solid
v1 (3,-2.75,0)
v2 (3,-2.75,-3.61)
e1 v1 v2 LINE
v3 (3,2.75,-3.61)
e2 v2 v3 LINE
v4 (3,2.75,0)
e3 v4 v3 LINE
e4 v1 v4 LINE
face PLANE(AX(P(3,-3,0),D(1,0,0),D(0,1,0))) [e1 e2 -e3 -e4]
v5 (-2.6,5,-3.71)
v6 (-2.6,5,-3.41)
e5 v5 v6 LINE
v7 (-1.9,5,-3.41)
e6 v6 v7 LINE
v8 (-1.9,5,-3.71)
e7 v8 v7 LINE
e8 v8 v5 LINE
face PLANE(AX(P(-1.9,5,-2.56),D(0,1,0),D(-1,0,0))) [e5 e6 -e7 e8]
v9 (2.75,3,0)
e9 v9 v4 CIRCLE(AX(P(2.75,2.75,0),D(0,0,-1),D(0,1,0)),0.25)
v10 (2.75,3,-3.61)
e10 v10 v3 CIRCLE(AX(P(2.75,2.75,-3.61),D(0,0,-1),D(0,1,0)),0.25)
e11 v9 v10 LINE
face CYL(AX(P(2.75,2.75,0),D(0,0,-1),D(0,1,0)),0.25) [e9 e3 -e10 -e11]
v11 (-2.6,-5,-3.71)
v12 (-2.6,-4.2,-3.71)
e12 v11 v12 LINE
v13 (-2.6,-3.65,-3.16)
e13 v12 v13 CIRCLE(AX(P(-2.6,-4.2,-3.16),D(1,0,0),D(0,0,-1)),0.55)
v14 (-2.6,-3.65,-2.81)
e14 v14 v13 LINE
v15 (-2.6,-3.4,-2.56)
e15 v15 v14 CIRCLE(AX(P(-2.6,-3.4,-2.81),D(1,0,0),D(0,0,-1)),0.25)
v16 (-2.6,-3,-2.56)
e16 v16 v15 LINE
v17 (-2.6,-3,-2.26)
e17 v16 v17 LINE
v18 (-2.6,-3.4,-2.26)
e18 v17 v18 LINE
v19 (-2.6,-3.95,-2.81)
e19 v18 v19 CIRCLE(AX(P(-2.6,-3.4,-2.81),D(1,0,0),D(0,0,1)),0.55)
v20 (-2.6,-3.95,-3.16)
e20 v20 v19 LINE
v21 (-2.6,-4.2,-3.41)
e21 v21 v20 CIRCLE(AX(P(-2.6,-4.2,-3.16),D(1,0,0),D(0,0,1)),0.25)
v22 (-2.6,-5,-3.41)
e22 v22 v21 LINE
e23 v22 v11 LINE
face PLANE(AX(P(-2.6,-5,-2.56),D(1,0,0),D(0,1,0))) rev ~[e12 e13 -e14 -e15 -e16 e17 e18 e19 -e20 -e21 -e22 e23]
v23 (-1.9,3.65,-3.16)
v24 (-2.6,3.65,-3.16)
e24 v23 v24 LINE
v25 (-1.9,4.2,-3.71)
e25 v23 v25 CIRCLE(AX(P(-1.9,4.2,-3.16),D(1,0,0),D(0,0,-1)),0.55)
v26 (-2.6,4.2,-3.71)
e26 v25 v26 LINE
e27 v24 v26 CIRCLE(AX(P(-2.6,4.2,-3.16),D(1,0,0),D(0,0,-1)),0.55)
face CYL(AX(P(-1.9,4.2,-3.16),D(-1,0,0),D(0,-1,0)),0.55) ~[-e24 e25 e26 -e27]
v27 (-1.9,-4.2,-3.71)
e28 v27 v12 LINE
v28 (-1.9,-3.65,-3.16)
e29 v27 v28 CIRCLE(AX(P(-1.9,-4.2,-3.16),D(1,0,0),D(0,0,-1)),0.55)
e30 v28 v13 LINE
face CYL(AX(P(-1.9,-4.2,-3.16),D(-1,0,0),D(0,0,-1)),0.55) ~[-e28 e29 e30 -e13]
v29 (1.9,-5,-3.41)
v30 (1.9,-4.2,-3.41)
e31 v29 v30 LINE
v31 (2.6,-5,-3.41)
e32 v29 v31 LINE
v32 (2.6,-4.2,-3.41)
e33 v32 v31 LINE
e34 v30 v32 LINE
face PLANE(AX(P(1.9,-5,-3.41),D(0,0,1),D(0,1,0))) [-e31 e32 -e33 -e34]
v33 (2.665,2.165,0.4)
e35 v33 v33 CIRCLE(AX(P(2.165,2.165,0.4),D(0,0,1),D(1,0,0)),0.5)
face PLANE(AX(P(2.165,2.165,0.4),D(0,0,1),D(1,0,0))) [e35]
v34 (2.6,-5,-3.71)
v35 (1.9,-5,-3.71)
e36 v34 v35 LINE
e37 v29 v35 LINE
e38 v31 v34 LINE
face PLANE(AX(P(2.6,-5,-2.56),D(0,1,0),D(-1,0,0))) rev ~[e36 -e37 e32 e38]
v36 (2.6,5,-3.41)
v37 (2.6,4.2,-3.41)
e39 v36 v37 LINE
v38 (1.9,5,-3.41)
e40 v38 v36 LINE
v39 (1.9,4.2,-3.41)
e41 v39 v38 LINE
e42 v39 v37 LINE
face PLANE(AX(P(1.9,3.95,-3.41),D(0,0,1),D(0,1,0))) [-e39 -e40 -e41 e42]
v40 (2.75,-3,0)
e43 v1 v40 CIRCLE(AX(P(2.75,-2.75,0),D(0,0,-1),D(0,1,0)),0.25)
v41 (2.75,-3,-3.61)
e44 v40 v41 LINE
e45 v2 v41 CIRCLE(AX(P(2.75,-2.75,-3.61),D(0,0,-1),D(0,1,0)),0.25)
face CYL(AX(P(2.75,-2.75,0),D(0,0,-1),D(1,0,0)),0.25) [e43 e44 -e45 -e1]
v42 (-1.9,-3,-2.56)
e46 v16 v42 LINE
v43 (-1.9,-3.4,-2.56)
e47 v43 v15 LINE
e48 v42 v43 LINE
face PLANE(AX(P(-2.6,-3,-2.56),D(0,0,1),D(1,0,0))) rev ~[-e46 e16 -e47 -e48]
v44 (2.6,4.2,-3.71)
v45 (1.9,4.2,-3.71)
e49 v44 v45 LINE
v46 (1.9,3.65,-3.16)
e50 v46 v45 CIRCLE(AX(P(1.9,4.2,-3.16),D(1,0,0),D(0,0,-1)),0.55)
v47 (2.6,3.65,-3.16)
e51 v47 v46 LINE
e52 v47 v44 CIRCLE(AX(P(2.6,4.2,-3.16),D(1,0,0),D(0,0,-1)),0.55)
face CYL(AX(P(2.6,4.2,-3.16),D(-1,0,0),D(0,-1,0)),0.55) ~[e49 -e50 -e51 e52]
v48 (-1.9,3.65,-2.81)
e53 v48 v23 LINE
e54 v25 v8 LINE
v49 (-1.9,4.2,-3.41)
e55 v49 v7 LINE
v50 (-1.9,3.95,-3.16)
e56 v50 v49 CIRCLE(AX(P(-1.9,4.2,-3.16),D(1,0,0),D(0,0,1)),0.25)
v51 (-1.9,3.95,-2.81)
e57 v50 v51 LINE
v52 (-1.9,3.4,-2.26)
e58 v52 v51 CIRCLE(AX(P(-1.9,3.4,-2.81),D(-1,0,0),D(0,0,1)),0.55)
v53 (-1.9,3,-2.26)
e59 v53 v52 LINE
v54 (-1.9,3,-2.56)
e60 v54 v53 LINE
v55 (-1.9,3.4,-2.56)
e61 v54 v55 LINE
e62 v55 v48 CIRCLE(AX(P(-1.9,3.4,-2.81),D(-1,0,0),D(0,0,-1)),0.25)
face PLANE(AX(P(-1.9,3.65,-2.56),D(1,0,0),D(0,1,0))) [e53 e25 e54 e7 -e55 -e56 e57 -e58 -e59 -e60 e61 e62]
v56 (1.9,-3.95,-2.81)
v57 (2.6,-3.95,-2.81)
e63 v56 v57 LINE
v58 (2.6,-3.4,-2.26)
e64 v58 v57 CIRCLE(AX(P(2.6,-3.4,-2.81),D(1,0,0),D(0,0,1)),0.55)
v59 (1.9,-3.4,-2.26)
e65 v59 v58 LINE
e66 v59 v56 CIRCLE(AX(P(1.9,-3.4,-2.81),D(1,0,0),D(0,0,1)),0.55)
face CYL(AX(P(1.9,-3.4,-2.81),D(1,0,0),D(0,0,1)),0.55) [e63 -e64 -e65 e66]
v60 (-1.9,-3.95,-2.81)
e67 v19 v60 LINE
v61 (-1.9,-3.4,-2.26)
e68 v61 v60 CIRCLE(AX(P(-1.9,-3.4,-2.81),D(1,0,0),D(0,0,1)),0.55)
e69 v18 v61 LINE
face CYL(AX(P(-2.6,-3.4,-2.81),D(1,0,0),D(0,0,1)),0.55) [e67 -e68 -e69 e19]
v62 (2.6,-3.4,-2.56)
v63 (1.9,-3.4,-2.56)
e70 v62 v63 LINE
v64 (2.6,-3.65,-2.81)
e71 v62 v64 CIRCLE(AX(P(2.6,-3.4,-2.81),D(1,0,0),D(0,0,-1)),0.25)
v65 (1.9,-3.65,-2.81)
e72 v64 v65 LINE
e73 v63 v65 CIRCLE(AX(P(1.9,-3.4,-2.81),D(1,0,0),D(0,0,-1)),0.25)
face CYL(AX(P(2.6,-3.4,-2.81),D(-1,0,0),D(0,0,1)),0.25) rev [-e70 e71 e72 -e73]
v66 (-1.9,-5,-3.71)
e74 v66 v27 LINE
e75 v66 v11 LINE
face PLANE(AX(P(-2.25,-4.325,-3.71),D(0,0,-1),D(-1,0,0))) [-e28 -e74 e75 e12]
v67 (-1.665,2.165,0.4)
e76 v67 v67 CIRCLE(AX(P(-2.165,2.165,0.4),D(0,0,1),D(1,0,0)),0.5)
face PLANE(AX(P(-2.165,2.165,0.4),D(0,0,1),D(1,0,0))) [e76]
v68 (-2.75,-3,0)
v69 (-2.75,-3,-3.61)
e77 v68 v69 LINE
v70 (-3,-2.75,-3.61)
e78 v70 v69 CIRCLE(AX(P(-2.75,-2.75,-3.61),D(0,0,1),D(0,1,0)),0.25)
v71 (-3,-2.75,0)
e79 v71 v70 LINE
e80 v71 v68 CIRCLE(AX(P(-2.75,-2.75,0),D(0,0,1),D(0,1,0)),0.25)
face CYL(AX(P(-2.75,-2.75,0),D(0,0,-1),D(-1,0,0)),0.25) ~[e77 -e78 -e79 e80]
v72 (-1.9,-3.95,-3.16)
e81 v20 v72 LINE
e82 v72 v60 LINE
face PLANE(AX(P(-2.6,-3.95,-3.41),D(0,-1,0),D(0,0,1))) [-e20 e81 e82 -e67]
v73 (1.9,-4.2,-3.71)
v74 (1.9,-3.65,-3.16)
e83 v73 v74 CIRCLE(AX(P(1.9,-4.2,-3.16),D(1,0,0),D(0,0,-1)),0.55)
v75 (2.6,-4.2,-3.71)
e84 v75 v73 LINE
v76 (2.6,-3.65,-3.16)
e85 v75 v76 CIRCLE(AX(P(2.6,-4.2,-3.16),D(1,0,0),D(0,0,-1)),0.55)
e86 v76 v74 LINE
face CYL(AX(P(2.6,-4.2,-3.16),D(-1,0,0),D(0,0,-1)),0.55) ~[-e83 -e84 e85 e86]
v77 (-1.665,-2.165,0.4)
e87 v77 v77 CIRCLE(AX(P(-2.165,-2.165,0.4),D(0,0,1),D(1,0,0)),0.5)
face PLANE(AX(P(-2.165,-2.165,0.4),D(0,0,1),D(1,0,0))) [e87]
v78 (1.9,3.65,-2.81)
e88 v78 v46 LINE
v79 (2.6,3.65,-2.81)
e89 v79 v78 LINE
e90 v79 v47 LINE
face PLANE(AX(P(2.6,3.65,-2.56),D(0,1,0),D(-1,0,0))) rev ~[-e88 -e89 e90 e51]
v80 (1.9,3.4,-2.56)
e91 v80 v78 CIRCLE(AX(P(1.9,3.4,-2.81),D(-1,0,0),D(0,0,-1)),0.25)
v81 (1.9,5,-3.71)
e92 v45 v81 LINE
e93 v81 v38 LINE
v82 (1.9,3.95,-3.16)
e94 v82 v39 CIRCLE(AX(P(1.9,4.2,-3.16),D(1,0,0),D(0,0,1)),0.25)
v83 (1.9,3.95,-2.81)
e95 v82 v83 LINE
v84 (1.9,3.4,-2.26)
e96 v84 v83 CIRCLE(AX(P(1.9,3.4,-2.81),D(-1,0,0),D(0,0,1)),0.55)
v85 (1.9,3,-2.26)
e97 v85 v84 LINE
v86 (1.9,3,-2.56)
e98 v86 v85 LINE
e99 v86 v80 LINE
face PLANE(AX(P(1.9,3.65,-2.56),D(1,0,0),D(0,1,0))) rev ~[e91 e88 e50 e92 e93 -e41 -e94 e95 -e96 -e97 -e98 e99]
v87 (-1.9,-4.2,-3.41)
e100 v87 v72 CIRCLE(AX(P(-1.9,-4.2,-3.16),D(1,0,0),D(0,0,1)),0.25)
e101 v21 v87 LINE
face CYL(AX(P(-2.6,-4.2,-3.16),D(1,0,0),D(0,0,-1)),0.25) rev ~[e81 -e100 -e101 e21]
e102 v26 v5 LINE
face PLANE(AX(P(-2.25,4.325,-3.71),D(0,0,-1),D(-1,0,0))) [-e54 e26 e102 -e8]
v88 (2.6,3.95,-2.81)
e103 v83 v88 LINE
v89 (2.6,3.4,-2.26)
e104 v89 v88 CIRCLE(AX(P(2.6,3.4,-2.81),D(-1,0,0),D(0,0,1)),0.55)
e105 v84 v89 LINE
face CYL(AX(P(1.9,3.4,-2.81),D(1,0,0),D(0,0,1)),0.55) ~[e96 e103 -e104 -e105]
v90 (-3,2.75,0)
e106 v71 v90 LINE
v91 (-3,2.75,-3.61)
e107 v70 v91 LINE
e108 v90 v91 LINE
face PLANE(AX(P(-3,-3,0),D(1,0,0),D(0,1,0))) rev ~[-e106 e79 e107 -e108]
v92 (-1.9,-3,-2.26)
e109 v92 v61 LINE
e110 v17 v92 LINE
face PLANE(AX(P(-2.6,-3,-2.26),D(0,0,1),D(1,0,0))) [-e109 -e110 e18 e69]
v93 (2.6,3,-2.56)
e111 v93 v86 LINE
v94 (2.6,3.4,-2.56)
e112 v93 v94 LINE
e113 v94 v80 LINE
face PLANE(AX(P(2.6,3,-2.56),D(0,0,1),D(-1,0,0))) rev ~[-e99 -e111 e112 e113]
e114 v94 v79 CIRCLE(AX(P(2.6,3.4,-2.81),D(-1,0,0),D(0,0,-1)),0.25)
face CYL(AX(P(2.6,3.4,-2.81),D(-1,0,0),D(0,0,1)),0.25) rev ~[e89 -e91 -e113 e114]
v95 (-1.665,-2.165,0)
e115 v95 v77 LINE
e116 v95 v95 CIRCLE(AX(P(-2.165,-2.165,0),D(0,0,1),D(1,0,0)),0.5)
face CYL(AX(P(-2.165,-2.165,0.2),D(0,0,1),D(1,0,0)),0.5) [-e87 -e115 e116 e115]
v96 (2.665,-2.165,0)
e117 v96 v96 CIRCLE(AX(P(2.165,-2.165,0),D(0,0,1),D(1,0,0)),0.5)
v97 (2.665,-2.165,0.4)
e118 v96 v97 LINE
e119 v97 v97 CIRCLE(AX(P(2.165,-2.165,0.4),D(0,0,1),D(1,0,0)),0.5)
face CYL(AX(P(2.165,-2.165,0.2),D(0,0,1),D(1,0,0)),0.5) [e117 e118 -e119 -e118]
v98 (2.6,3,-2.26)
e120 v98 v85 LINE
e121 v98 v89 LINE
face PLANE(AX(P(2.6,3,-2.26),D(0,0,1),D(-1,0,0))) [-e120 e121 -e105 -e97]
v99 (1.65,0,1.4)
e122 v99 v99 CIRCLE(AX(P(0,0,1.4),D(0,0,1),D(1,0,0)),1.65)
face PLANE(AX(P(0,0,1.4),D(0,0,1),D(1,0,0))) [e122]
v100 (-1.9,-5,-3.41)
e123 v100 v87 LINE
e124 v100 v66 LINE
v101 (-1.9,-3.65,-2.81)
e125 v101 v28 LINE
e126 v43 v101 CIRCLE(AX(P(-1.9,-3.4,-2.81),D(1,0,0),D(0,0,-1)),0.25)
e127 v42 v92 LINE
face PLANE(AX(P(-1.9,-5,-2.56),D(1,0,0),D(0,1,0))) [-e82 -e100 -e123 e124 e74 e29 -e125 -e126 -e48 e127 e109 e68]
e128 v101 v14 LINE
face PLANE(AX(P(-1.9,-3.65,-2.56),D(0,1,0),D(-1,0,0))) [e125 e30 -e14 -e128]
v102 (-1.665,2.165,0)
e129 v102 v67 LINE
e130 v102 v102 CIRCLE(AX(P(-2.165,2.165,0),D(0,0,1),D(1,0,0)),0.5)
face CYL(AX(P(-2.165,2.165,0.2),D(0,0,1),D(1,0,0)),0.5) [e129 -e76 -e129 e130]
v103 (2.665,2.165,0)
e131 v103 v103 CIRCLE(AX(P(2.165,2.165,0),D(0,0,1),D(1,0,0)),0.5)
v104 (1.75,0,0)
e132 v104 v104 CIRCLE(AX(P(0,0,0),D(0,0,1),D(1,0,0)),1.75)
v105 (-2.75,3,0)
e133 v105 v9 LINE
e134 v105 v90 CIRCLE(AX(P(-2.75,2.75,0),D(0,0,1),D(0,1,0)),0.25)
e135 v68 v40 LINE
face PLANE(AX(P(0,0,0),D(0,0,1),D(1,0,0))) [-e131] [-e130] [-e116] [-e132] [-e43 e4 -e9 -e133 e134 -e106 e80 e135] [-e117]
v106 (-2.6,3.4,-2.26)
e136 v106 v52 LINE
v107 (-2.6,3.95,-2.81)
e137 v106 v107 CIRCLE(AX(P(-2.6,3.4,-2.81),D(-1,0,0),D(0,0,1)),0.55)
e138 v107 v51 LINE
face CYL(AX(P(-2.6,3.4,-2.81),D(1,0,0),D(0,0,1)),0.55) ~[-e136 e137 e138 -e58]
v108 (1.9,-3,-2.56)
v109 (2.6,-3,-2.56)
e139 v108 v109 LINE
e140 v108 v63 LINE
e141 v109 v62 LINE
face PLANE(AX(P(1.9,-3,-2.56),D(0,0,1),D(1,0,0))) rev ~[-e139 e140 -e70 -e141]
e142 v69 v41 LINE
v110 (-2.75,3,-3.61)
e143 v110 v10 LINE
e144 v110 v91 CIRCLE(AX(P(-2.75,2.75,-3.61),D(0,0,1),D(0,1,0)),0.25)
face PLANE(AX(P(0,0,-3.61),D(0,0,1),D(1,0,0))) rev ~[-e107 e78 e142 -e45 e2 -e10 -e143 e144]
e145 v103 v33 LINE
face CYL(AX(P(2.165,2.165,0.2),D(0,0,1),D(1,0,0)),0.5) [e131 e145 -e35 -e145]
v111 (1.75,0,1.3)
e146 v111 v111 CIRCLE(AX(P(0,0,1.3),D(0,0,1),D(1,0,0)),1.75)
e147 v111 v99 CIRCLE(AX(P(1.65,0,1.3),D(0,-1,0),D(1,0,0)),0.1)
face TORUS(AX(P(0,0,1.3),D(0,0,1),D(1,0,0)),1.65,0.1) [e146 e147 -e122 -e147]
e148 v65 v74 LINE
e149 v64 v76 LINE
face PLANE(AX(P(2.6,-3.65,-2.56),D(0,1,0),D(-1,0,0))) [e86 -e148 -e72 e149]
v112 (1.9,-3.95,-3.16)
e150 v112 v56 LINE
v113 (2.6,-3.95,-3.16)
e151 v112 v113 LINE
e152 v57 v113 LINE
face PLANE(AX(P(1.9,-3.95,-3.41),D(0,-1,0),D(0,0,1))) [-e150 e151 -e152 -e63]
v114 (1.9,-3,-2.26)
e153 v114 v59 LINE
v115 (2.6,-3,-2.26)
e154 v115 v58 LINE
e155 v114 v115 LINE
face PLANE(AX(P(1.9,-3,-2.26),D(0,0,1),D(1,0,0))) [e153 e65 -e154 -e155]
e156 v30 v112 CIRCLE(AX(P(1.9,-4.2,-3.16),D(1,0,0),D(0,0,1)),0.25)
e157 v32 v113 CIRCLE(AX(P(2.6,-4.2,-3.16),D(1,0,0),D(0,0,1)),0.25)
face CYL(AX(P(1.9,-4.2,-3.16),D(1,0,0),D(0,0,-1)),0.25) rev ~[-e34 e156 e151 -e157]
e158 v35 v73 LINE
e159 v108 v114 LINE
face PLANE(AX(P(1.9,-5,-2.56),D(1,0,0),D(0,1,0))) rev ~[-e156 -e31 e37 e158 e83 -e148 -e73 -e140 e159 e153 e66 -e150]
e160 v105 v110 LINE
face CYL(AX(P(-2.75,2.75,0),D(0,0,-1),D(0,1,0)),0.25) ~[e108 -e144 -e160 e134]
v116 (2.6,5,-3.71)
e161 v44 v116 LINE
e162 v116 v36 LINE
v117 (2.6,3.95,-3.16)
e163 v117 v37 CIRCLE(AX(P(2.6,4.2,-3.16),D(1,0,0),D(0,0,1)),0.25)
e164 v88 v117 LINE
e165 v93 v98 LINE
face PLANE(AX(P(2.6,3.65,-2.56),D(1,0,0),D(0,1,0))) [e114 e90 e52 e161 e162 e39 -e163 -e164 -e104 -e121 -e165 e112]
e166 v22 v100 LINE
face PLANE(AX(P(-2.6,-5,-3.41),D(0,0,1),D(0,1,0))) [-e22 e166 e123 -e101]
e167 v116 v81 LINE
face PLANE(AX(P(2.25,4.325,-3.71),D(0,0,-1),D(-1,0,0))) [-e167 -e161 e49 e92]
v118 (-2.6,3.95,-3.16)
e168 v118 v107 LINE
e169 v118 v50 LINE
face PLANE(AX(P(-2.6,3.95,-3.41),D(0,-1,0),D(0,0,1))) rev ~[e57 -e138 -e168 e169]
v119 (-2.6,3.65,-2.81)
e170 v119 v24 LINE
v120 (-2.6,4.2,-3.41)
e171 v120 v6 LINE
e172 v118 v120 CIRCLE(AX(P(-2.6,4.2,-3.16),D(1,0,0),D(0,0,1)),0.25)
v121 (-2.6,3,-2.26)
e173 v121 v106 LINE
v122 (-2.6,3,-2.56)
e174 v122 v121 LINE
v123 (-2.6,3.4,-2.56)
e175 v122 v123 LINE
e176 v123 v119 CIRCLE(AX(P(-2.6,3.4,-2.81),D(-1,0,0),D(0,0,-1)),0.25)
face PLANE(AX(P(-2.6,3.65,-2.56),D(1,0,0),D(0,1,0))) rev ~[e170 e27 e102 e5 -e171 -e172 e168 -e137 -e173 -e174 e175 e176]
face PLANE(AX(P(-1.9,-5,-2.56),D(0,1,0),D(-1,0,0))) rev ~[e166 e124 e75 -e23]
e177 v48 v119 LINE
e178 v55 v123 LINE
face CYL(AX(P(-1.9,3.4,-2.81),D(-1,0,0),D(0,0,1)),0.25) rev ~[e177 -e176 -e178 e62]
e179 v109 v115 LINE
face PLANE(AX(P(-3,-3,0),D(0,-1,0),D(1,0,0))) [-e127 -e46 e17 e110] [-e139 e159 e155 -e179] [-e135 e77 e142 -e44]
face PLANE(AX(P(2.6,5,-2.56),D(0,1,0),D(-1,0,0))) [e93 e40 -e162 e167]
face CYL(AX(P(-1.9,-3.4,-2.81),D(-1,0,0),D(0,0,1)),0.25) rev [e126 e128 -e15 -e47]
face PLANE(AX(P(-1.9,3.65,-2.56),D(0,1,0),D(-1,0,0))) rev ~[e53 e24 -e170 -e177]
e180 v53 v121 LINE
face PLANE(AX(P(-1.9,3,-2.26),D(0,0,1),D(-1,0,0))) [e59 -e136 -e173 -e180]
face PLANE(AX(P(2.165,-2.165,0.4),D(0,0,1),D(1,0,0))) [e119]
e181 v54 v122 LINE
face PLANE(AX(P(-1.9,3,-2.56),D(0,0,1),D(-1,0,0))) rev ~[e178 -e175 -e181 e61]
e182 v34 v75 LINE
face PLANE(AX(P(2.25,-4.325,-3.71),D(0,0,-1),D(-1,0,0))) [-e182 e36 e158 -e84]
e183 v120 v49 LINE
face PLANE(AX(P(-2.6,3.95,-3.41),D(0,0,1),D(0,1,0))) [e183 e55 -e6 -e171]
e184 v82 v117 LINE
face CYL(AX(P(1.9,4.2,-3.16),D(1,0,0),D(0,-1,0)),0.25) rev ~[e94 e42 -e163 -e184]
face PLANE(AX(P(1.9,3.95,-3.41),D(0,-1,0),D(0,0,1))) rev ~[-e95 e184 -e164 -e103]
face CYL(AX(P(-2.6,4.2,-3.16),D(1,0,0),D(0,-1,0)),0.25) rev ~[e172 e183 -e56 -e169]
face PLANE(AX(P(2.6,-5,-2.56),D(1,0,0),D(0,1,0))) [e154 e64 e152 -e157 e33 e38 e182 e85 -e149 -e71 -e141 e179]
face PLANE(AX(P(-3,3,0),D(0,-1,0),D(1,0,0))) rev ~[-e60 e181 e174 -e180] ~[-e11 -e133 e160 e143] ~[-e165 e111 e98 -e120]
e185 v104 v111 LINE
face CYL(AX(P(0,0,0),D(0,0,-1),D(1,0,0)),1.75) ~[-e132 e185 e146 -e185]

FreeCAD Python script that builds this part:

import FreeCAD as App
import Part
import Sketcher
Q = App.Units.Quantity


def edges_at(feature, points):
    """Names of the edges that pass closest to the given points."""
    edges = feature.Shape.Edges
    near = lambda p: min(range(len(edges)), key=lambda i: edges[i].distToShape(Part.Vertex(*p))[0])
    return sorted({f"Edge{near(p) + 1}" for p in points})

doc = App.newDocument("Part")
params = doc.addObject("Spreadsheet::Sheet", "Params")
for row, (alias, value) in enumerate([
    ("sketch1_width", "6 mm"),
    ("pad1_length", "3.61 mm"),
    ("sketch2_width", "0.7 mm"),
    ("sketch2_height", "0.3 mm"),
    ("pad2_length", "2 mm"),
    ("sketch3_width", "0.7 mm"),
    ("sketch3_height", "1.35 mm"),
    ("pad3_length", "1.15 mm"),
    ("sketch4_width", "0.7 mm"),
    ("sketch4_height", "0.3 mm"),
    ("pad4_length", "2 mm"),
    ("sketch5_width", "0.7 mm"),
    ("sketch5_height", "1.35 mm"),
    ("pad5_length", "1.15 mm"),
    ("sketch6_width", "0.7 mm"),
    ("sketch6_height", "0.3 mm"),
    ("pad6_length", "2 mm"),
    ("sketch7_width", "0.7 mm"),
    ("sketch7_height", "1.35 mm"),
    ("pad7_length", "1.15 mm"),
    ("sketch8_width", "0.7 mm"),
    ("sketch8_height", "0.3 mm"),
    ("pad8_length", "2 mm"),
    ("sketch9_width", "0.7 mm"),
    ("sketch9_height", "1.35 mm"),
    ("pad9_length", "1.15 mm"),
    ("sketch10_width", "1.05 mm"),
    ("sketch10_height", "1.15 mm"),
    ("sketch11_width", "1.05 mm"),
    ("sketch11_height", "1.15 mm"),
    ("sketch12_width", "1.05 mm"),
    ("sketch12_height", "1.15 mm"),
    ("sketch13_width", "1.05 mm"),
    ("sketch13_height", "1.15 mm"),
    ("sketch14_width", "0.5 mm"),
    ("sketch14_height", "0.4 mm"),
    ("revolution_angle", "360 deg"),
    ("sketch15_width", "0.5 mm"),
    ("sketch15_height", "0.4 mm"),
    ("revolution2_angle", "360 deg"),
    ("sketch16_width", "0.5 mm"),
    ("sketch16_height", "0.4 mm"),
    ("revolution3_angle", "360 deg"),
    ("sketch17_width", "0.5 mm"),
    ("sketch17_height", "0.4 mm"),
    ("revolution4_angle", "360 deg"),
    ("fillet_radius", "0.25 mm"),
    ("fillet2_radius", "0.55 mm"),
    ("sketch18_diameter", "3.5 mm"),
    ("pad10_length", "1.4 mm"),
    ("fillet3_radius", "0.1 mm"),
], start=1):
    params.set(f"A{row}", alias)
    params.set(f"B{row}", "=" + value)
    params.setAlias(f"B{row}", alias)

body = doc.addObject("PartDesign::Body", "Body")

# Sketch on XY plane
sketch1 = body.newObject("Sketcher::SketchObject", "Sketch")
sketch1.AttachmentSupport = (doc.getObject("XY_Plane"), [""])
sketch1.MapMode = "FlatFace"
sketch1.addGeometry([
    Part.LineSegment(App.Vector(-3, 3, 0), App.Vector(-3, -3, 0)),
    Part.LineSegment(App.Vector(-3, -3, 0), App.Vector(3, -3, 0)),
    Part.LineSegment(App.Vector(3, -3, 0), App.Vector(3, 3, 0)),
    Part.LineSegment(App.Vector(3, 3, 0), App.Vector(-3, 3, 0)),
], False)
sketch1.addConstraint([
    Sketcher.Constraint("Coincident", 0, 2, 1, 1),
    Sketcher.Constraint("Coincident", 1, 2, 2, 1),
    Sketcher.Constraint("Coincident", 2, 2, 3, 1),
    Sketcher.Constraint("Coincident", 3, 2, 0, 1),
    Sketcher.Constraint("Vertical", 0),
    Sketcher.Constraint("Horizontal", 1),
    Sketcher.Constraint("Vertical", 2),
    Sketcher.Constraint("Horizontal", 3),
    Sketcher.Constraint("Symmetric", 0, 2, 2, 2, -1, 1),
    Sketcher.Constraint("Equal", 3, 0),
    Sketcher.Constraint("DistanceX", 1, 1, 1, 2, Q("6 mm")),
])
sketch1.setExpression("Constraints[10]", "Params.sketch1_width")
pad1 = body.newObject("PartDesign::Pad", "Pad")
pad1.Profile = sketch1
pad1.setExpression("Length", "Params.pad1_length")
pad1.Reversed = True

# Sketch on XZ plane
sketch2 = body.newObject("Sketcher::SketchObject", "Sketch001")
sketch2.AttachmentSupport = (doc.getObject("XZ_Plane"), [""])
sketch2.MapMode = "FlatFace"
sketch2.AttachmentOffset = App.Placement(App.Vector(0, 0, 3), App.Rotation())
sketch2.addGeometry([
    Part.LineSegment(App.Vector(-2.6, -2.26, 0), App.Vector(-2.6, -2.56, 0)),
    Part.LineSegment(App.Vector(-2.6, -2.56, 0), App.Vector(-1.9, -2.56, 0)),
    Part.LineSegment(App.Vector(-1.9, -2.56, 0), App.Vector(-1.9, -2.26, 0)),
    Part.LineSegment(App.Vector(-1.9, -2.26, 0), App.Vector(-2.6, -2.26, 0)),
], False)
sketch2.addConstraint([
    Sketcher.Constraint("Coincident", 0, 2, 1, 1),
    Sketcher.Constraint("Coincident", 1, 2, 2, 1),
    Sketcher.Constraint("Coincident", 2, 2, 3, 1),
    Sketcher.Constraint("Coincident", 3, 2, 0, 1),
    Sketcher.Constraint("Vertical", 0),
    Sketcher.Constraint("Horizontal", 1),
    Sketcher.Constraint("Vertical", 2),
    Sketcher.Constraint("Horizontal", 3),
    Sketcher.Constraint("DistanceX", 1, 1, 1, 2, Q("0.7 mm")),
    Sketcher.Constraint("DistanceY", 0, 2, 0, 1, Q("0.3 mm")),
    Sketcher.Constraint("DistanceX", 0, 2, -1, 1, Q("2.6 mm")),
    Sketcher.Constraint("DistanceY", 0, 2, -1, 1, Q("2.56 mm")),
])
sketch2.setExpression("Constraints[8]", "Params.sketch2_width")
sketch2.setExpression("Constraints[9]", "Params.sketch2_height")
pad2 = body.newObject("PartDesign::Pad", "Pad001")
pad2.Profile = sketch2
pad2.setExpression("Length", "Params.pad2_length")

# Sketch on XY plane
sketch3 = body.newObject("Sketcher::SketchObject", "Sketch002")
sketch3.AttachmentSupport = (doc.getObject("XY_Plane"), [""])
sketch3.MapMode = "FlatFace"
sketch3.AttachmentOffset = App.Placement(App.Vector(0, 0, -2.56), App.Rotation())
sketch3.addGeometry([
    Part.LineSegment(App.Vector(-1.9, -3.6, 0), App.Vector(-1.9, -5, 0)),
    Part.LineSegment(App.Vector(-1.9, -5, 0), App.Vector(-2.6, -5, 0)),
    Part.LineSegment(App.Vector(-2.6, -5, 0), App.Vector(-2.6, -3.6, 0)),
    Part.LineSegment(App.Vector(-2.6, -3.6, 0), App.Vector(-1.9, -3.6, 0)),
], False)
sketch3.addConstraint([
    Sketcher.Constraint("Coincident", 0, 2, 1, 1),
    Sketcher.Constraint("Coincident", 1, 2, 2, 1),
    Sketcher.Constraint("Coincident", 2, 2, 3, 1),
    Sketcher.Constraint("Coincident", 3, 2, 0, 1),
    Sketcher.Constraint("Vertical", 0),
    Sketcher.Constraint("Horizontal", 1),
    Sketcher.Constraint("Vertical", 2),
    Sketcher.Constraint("Horizontal", 3),
    Sketcher.Constraint("DistanceX", 1, 2, 1, 1, Q("0.7 mm")),
    Sketcher.Constraint("DistanceY", 0, 2, -1, 1, Q("5 mm")),
    Sketcher.Constraint("DistanceY", 0, 2, 0, 1, Q("1.35 mm")),
    Sketcher.Constraint("DistanceX", 0, 2, -1, 1, Q("1.9 mm")),
])
sketch3.setExpression("Constraints[8]", "Params.sketch3_width")
sketch3.setExpression("Constraints[10]", "Params.sketch3_height")
pad3 = body.newObject("PartDesign::Pad", "Pad002")
pad3.Profile = sketch3
pad3.setExpression("Length", "Params.pad3_length")
pad3.Reversed = True

# Sketch on XZ plane
sketch4 = body.newObject("Sketcher::SketchObject", "Sketch003")
sketch4.AttachmentSupport = (doc.getObject("XZ_Plane"), [""])
sketch4.MapMode = "FlatFace"
sketch4.AttachmentOffset = App.Placement(App.Vector(0, 0, 3), App.Rotation())
sketch4.addGeometry([
    Part.LineSegment(App.Vector(1.9, -2.26, 0), App.Vector(1.9, -2.56, 0)),
    Part.LineSegment(App.Vector(1.9, -2.56, 0), App.Vector(2.6, -2.56, 0)),
    Part.LineSegment(App.Vector(2.6, -2.56, 0), App.Vector(2.6, -2.26, 0)),
    Part.LineSegment(App.Vector(2.6, -2.26, 0), App.Vector(1.9, -2.26, 0)),
], False)
sketch4.addConstraint([
    Sketcher.Constraint("Coincident", 0, 2, 1, 1),
    Sketcher.Constraint("Coincident", 1, 2, 2, 1),
    Sketcher.Constraint("Coincident", 2, 2, 3, 1),
    Sketcher.Constraint("Coincident", 3, 2, 0, 1),
    Sketcher.Constraint("Vertical", 0),
    Sketcher.Constraint("Horizontal", 1),
    Sketcher.Constraint("Vertical", 2),
    Sketcher.Constraint("Horizontal", 3),
    Sketcher.Constraint("DistanceX", 1, 1, 1, 2, Q("0.7 mm")),
    Sketcher.Constraint("DistanceY", 0, 2, 0, 1, Q("0.3 mm")),
    Sketcher.Constraint("DistanceX", -1, 1, 0, 2, Q("1.9 mm")),
    Sketcher.Constraint("DistanceY", 0, 2, -1, 1, Q("2.56 mm")),
])
sketch4.setExpression("Constraints[8]", "Params.sketch4_width")
sketch4.setExpression("Constraints[9]", "Params.sketch4_height")
pad4 = body.newObject("PartDesign::Pad", "Pad003")
pad4.Profile = sketch4
pad4.setExpression("Length", "Params.pad4_length")

# Sketch on XY plane
sketch5 = body.newObject("Sketcher::SketchObject", "Sketch004")
sketch5.AttachmentSupport = (doc.getObject("XY_Plane"), [""])
sketch5.MapMode = "FlatFace"
sketch5.AttachmentOffset = App.Placement(App.Vector(0, 0, -2.56), App.Rotation())
sketch5.addGeometry([
    Part.LineSegment(App.Vector(2.6, -3.6, 0), App.Vector(2.6, -5, 0)),
    Part.LineSegment(App.Vector(2.6, -5, 0), App.Vector(1.9, -5, 0)),
    Part.LineSegment(App.Vector(1.9, -5, 0), App.Vector(1.9, -3.6, 0)),
    Part.LineSegment(App.Vector(1.9, -3.6, 0), App.Vector(2.6, -3.6, 0)),
], False)
sketch5.addConstraint([
    Sketcher.Constraint("Coincident", 0, 2, 1, 1),
    Sketcher.Constraint("Coincident", 1, 2, 2, 1),
    Sketcher.Constraint("Coincident", 2, 2, 3, 1),
    Sketcher.Constraint("Coincident", 3, 2, 0, 1),
    Sketcher.Constraint("Vertical", 0),
    Sketcher.Constraint("Horizontal", 1),
    Sketcher.Constraint("Vertical", 2),
    Sketcher.Constraint("Horizontal", 3),
    Sketcher.Constraint("DistanceX", 1, 2, 1, 1, Q("0.7 mm")),
    Sketcher.Constraint("DistanceY", 0, 2, -1, 1, Q("5 mm")),
    Sketcher.Constraint("DistanceY", 0, 2, 0, 1, Q("1.35 mm")),
    Sketcher.Constraint("DistanceX", -1, 1, 0, 2, Q("2.6 mm")),
])
sketch5.setExpression("Constraints[8]", "Params.sketch5_width")
sketch5.setExpression("Constraints[10]", "Params.sketch5_height")
pad5 = body.newObject("PartDesign::Pad", "Pad004")
pad5.Profile = sketch5
pad5.setExpression("Length", "Params.pad5_length")
pad5.Reversed = True

# Sketch on XZ plane
sketch6 = body.newObject("Sketcher::SketchObject", "Sketch005")
sketch6.AttachmentSupport = (doc.getObject("XZ_Plane"), [""])
sketch6.MapMode = "FlatFace"
sketch6.AttachmentOffset = App.Placement(App.Vector(0, 0, -3), App.Rotation())
sketch6.addGeometry([
    Part.LineSegment(App.Vector(-1.9, -2.26, 0), App.Vector(-1.9, -2.56, 0)),
    Part.LineSegment(App.Vector(-1.9, -2.56, 0), App.Vector(-2.6, -2.56, 0)),
    Part.LineSegment(App.Vector(-2.6, -2.56, 0), App.Vector(-2.6, -2.26, 0)),
    Part.LineSegment(App.Vector(-2.6, -2.26, 0), App.Vector(-1.9, -2.26, 0)),
], False)
sketch6.addConstraint([
    Sketcher.Constraint("Coincident", 0, 2, 1, 1),
    Sketcher.Constraint("Coincident", 1, 2, 2, 1),
    Sketcher.Constraint("Coincident", 2, 2, 3, 1),
    Sketcher.Constraint("Coincident", 3, 2, 0, 1),
    Sketcher.Constraint("Vertical", 0),
    Sketcher.Constraint("Horizontal", 1),
    Sketcher.Constraint("Vertical", 2),
    Sketcher.Constraint("Horizontal", 3),
    Sketcher.Constraint("DistanceX", 1, 2, 1, 1, Q("0.7 mm")),
    Sketcher.Constraint("DistanceY", 0, 2, 0, 1, Q("0.3 mm")),
    Sketcher.Constraint("DistanceX", 0, 2, -1, 1, Q("1.9 mm")),
    Sketcher.Constraint("DistanceY", 0, 2, -1, 1, Q("2.56 mm")),
])
sketch6.setExpression("Constraints[8]", "Params.sketch6_width")
sketch6.setExpression("Constraints[9]", "Params.sketch6_height")
pad6 = body.newObject("PartDesign::Pad", "Pad005")
pad6.Profile = sketch6
pad6.setExpression("Length", "Params.pad6_length")
pad6.Reversed = True

# Sketch on XY plane
sketch7 = body.newObject("Sketcher::SketchObject", "Sketch006")
sketch7.AttachmentSupport = (doc.getObject("XY_Plane"), [""])
sketch7.MapMode = "FlatFace"
sketch7.AttachmentOffset = App.Placement(App.Vector(0, 0, -2.56), App.Rotation())
sketch7.addGeometry([
    Part.LineSegment(App.Vector(-1.9, 5, 0), App.Vector(-1.9, 3.6, 0)),
    Part.LineSegment(App.Vector(-1.9, 3.6, 0), App.Vector(-2.6, 3.6, 0)),
    Part.LineSegment(App.Vector(-2.6, 3.6, 0), App.Vector(-2.6, 5, 0)),
    Part.LineSegment(App.Vector(-2.6, 5, 0), App.Vector(-1.9, 5, 0)),
], False)
sketch7.addConstraint([
    Sketcher.Constraint("Coincident", 0, 2, 1, 1),
    Sketcher.Constraint("Coincident", 1, 2, 2, 1),
    Sketcher.Constraint("Coincident", 2, 2, 3, 1),
    Sketcher.Constraint("Coincident", 3, 2, 0, 1),
    Sketcher.Constraint("Vertical", 0),
    Sketcher.Constraint("Horizontal", 1),
    Sketcher.Constraint("Vertical", 2),
    Sketcher.Constraint("Horizontal", 3),
    Sketcher.Constraint("DistanceX", 1, 2, 1, 1, Q("0.7 mm")),
    Sketcher.Constraint("DistanceY", -1, 1, 2, 2, Q("5 mm")),
    Sketcher.Constraint("DistanceY", 0, 2, 0, 1, Q("1.35 mm")),
    Sketcher.Constraint("DistanceX", 0, 2, -1, 1, Q("1.9 mm")),
])
sketch7.setExpression("Constraints[8]", "Params.sketch7_width")
sketch7.setExpression("Constraints[10]", "Params.sketch7_height")
pad7 = body.newObject("PartDesign::Pad", "Pad006")
pad7.Profile = sketch7
pad7.setExpression("Length", "Params.pad7_length")
pad7.Reversed = True

# Sketch on XZ plane
sketch8 = body.newObject("Sketcher::SketchObject", "Sketch007")
sketch8.AttachmentSupport = (doc.getObject("XZ_Plane"), [""])
sketch8.MapMode = "FlatFace"
sketch8.AttachmentOffset = App.Placement(App.Vector(0, 0, -3), App.Rotation())
sketch8.addGeometry([
    Part.LineSegment(App.Vector(2.6, -2.26, 0), App.Vector(2.6, -2.56, 0)),
    Part.LineSegment(App.Vector(2.6, -2.56, 0), App.Vector(1.9, -2.56, 0)),
    Part.LineSegment(App.Vector(1.9, -2.56, 0), App.Vector(1.9, -2.26, 0)),
    Part.LineSegment(App.Vector(1.9, -2.26, 0), App.Vector(2.6, -2.26, 0)),
], False)
sketch8.addConstraint([
    Sketcher.Constraint("Coincident", 0, 2, 1, 1),
    Sketcher.Constraint("Coincident", 1, 2, 2, 1),
    Sketcher.Constraint("Coincident", 2, 2, 3, 1),
    Sketcher.Constraint("Coincident", 3, 2, 0, 1),
    Sketcher.Constraint("Vertical", 0),
    Sketcher.Constraint("Horizontal", 1),
    Sketcher.Constraint("Vertical", 2),
    Sketcher.Constraint("Horizontal", 3),
    Sketcher.Constraint("DistanceX", 1, 2, 1, 1, Q("0.7 mm")),
    Sketcher.Constraint("DistanceY", 0, 2, 0, 1, Q("0.3 mm")),
    Sketcher.Constraint("DistanceX", -1, 1, 0, 2, Q("2.6 mm")),
    Sketcher.Constraint("DistanceY", 0, 2, -1, 1, Q("2.56 mm")),
])
sketch8.setExpression("Constraints[8]", "Params.sketch8_width")
sketch8.setExpression("Constraints[9]", "Params.sketch8_height")
pad8 = body.newObject("PartDesign::Pad", "Pad007")
pad8.Profile = sketch8
pad8.setExpression("Length", "Params.pad8_length")
pad8.Reversed = True

# Sketch on XY plane
sketch9 = body.newObject("Sketcher::SketchObject", "Sketch008")
sketch9.AttachmentSupport = (doc.getObject("XY_Plane"), [""])
sketch9.MapMode = "FlatFace"
sketch9.AttachmentOffset = App.Placement(App.Vector(0, 0, -2.56), App.Rotation())
sketch9.addGeometry([
    Part.LineSegment(App.Vector(2.6, 5, 0), App.Vector(2.6, 3.6, 0)),
    Part.LineSegment(App.Vector(2.6, 3.6, 0), App.Vector(1.9, 3.6, 0)),
    Part.LineSegment(App.Vector(1.9, 3.6, 0), App.Vector(1.9, 5, 0)),
    Part.LineSegment(App.Vector(1.9, 5, 0), App.Vector(2.6, 5, 0)),
], False)
sketch9.addConstraint([
    Sketcher.Constraint("Coincident", 0, 2, 1, 1),
    Sketcher.Constraint("Coincident", 1, 2, 2, 1),
    Sketcher.Constraint("Coincident", 2, 2, 3, 1),
    Sketcher.Constraint("Coincident", 3, 2, 0, 1),
    Sketcher.Constraint("Vertical", 0),
    Sketcher.Constraint("Horizontal", 1),
    Sketcher.Constraint("Vertical", 2),
    Sketcher.Constraint("Horizontal", 3),
    Sketcher.Constraint("DistanceX", 1, 2, 1, 1, Q("0.7 mm")),
    Sketcher.Constraint("DistanceY", -1, 1, 2, 2, Q("5 mm")),
    Sketcher.Constraint("DistanceY", 0, 2, 0, 1, Q("1.35 mm")),
    Sketcher.Constraint("DistanceX", -1, 1, 0, 2, Q("2.6 mm")),
])
sketch9.setExpression("Constraints[8]", "Params.sketch9_width")
sketch9.setExpression("Constraints[10]", "Params.sketch9_height")
pad9 = body.newObject("PartDesign::Pad", "Pad008")
pad9.Profile = sketch9
pad9.setExpression("Length", "Params.pad9_length")
pad9.Reversed = True

# Sketch on YZ plane
sketch10 = body.newObject("Sketcher::SketchObject", "Sketch009")
sketch10.AttachmentSupport = (doc.getObject("YZ_Plane"), [""])
sketch10.MapMode = "FlatFace"
sketch10.AttachmentOffset = App.Placement(App.Vector(0, 0, -2.6), App.Rotation())
sketch10.addGeometry([
    Part.LineSegment(App.Vector(-4, -3.4, 0), App.Vector(-5, -3.4, 0)),
    Part.LineSegment(App.Vector(-5, -3.4, 0), App.Vector(-5, -2.3, 0)),
    Part.LineSegment(App.Vector(-5, -2.3, 0), App.Vector(-4, -2.3, 0)),
    Part.LineSegment(App.Vector(-4, -2.3, 0), App.Vector(-4, -3.4, 0)),
], False)
sketch10.addConstraint([
    Sketcher.Constraint("Coincident", 0, 2, 1, 1),
    Sketcher.Constraint("Coincident", 1, 2, 2, 1),
    Sketcher.Constraint("Coincident", 2, 2, 3, 1),
    Sketcher.Constraint("Coincident", 3, 2, 0, 1),
    Sketcher.Constraint("Horizontal", 0),
    Sketcher.Constraint("Vertical", 1),
    Sketcher.Constraint("Horizontal", 2),
    Sketcher.Constraint("Vertical", 3),
    Sketcher.Constraint("DistanceX", 0, 2, -1, 1, Q("5 mm")),
    Sketcher.Constraint("DistanceX", 0, 2, 0, 1, Q("1.05 mm")),
    Sketcher.Constraint("DistanceY", 1, 1, 1, 2, Q("1.15 mm")),
    Sketcher.Constraint("DistanceY", 0, 2, -1, 1, Q("3.41 mm")),
])
sketch10.setExpression("Constraints[9]", "Params.sketch10_width")
sketch10.setExpression("Constraints[10]", "Params.sketch10_height")
pocket1 = body.newObject("PartDesign::Pocket", "Pocket")
pocket1.Profile = sketch10
pocket1.Type = "UpToFirst"
pocket1.Reversed = True

# Sketch on YZ plane
sketch11 = body.newObject("Sketcher::SketchObject", "Sketch010")
sketch11.AttachmentSupport = (doc.getObject("YZ_Plane"), [""])
sketch11.MapMode = "FlatFace"
sketch11.AttachmentOffset = App.Placement(App.Vector(0, 0, 1.9), App.Rotation())
sketch11.addGeometry([
    Part.LineSegment(App.Vector(-4, -3.4, 0), App.Vector(-5, -3.4, 0)),
    Part.LineSegment(App.Vector(-5, -3.4, 0), App.Vector(-5, -2.3, 0)),
    Part.LineSegment(App.Vector(-5, -2.3, 0), App.Vector(-4, -2.3, 0)),
    Part.LineSegment(App.Vector(-4, -2.3, 0), App.Vector(-4, -3.4, 0)),
], False)
sketch11.addConstraint([
    Sketcher.Constraint("Coincident", 0, 2, 1, 1),
    Sketcher.Constraint("Coincident", 1, 2, 2, 1),
    Sketcher.Constraint("Coincident", 2, 2, 3, 1),
    Sketcher.Constraint("Coincident", 3, 2, 0, 1),
    Sketcher.Constraint("Horizontal", 0),
    Sketcher.Constraint("Vertical", 1),
    Sketcher.Constraint("Horizontal", 2),
    Sketcher.Constraint("Vertical", 3),
    Sketcher.Constraint("DistanceX", 0, 2, -1, 1, Q("5 mm")),
    Sketcher.Constraint("DistanceX", 0, 2, 0, 1, Q("1.05 mm")),
    Sketcher.Constraint("DistanceY", 1, 1, 1, 2, Q("1.15 mm")),
    Sketcher.Constraint("DistanceY", 0, 2, -1, 1, Q("3.41 mm")),
])
sketch11.setExpression("Constraints[9]", "Params.sketch11_width")
sketch11.setExpression("Constraints[10]", "Params.sketch11_height")
pocket2 = body.newObject("PartDesign::Pocket", "Pocket001")
pocket2.Profile = sketch11
pocket2.Type = "ThroughAll"
pocket2.Reversed = True

# Sketch on YZ plane
sketch12 = body.newObject("Sketcher::SketchObject", "Sketch011")
sketch12.AttachmentSupport = (doc.getObject("YZ_Plane"), [""])
sketch12.MapMode = "FlatFace"
sketch12.AttachmentOffset = App.Placement(App.Vector(0, 0, -2.6), App.Rotation())
sketch12.addGeometry([
    Part.LineSegment(App.Vector(5, -3.4, 0), App.Vector(4, -3.4, 0)),
    Part.LineSegment(App.Vector(4, -3.4, 0), App.Vector(4, -2.3, 0)),
    Part.LineSegment(App.Vector(4, -2.3, 0), App.Vector(5, -2.3, 0)),
    Part.LineSegment(App.Vector(5, -2.3, 0), App.Vector(5, -3.4, 0)),
], False)
sketch12.addConstraint([
    Sketcher.Constraint("Coincident", 0, 2, 1, 1),
    Sketcher.Constraint("Coincident", 1, 2, 2, 1),
    Sketcher.Constraint("Coincident", 2, 2, 3, 1),
    Sketcher.Constraint("Coincident", 3, 2, 0, 1),
    Sketcher.Constraint("Horizontal", 0),
    Sketcher.Constraint("Vertical", 1),
    Sketcher.Constraint("Horizontal", 2),
    Sketcher.Constraint("Vertical", 3),
    Sketcher.Constraint("DistanceX", -1, 1, 2, 2, Q("5 mm")),
    Sketcher.Constraint("DistanceX", 0, 2, 0, 1, Q("1.05 mm")),
    Sketcher.Constraint("DistanceY", 1, 1, 1, 2, Q("1.15 mm")),
    Sketcher.Constraint("DistanceY", 0, 2, -1, 1, Q("3.41 mm")),
])
sketch12.setExpression("Constraints[9]", "Params.sketch12_width")
sketch12.setExpression("Constraints[10]", "Params.sketch12_height")
pocket3 = body.newObject("PartDesign::Pocket", "Pocket002")
pocket3.Profile = sketch12
pocket3.Type = "UpToFirst"
pocket3.Reversed = True

# Sketch on YZ plane
sketch13 = body.newObject("Sketcher::SketchObject", "Sketch012")
sketch13.AttachmentSupport = (doc.getObject("YZ_Plane"), [""])
sketch13.MapMode = "FlatFace"
sketch13.AttachmentOffset = App.Placement(App.Vector(0, 0, 1.9), App.Rotation())
sketch13.addGeometry([
    Part.LineSegment(App.Vector(5, -3.4, 0), App.Vector(4, -3.4, 0)),
    Part.LineSegment(App.Vector(4, -3.4, 0), App.Vector(4, -2.3, 0)),
    Part.LineSegment(App.Vector(4, -2.3, 0), App.Vector(5, -2.3, 0)),
    Part.LineSegment(App.Vector(5, -2.3, 0), App.Vector(5, -3.4, 0)),
], False)
sketch13.addConstraint([
    Sketcher.Constraint("Coincident", 0, 2, 1, 1),
    Sketcher.Constraint("Coincident", 1, 2, 2, 1),
    Sketcher.Constraint("Coincident", 2, 2, 3, 1),
    Sketcher.Constraint("Coincident", 3, 2, 0, 1),
    Sketcher.Constraint("Horizontal", 0),
    Sketcher.Constraint("Vertical", 1),
    Sketcher.Constraint("Horizontal", 2),
    Sketcher.Constraint("Vertical", 3),
    Sketcher.Constraint("DistanceX", -1, 1, 2, 2, Q("5 mm")),
    Sketcher.Constraint("DistanceX", 0, 2, 0, 1, Q("1.05 mm")),
    Sketcher.Constraint("DistanceY", 1, 1, 1, 2, Q("1.15 mm")),
    Sketcher.Constraint("DistanceY", 0, 2, -1, 1, Q("3.41 mm")),
])
sketch13.setExpression("Constraints[9]", "Params.sketch13_width")
sketch13.setExpression("Constraints[10]", "Params.sketch13_height")
pocket4 = body.newObject("PartDesign::Pocket", "Pocket003")
pocket4.Profile = sketch13
pocket4.Type = "ThroughAll"
pocket4.Reversed = True

# Sketch on XZ plane
sketch14 = body.newObject("Sketcher::SketchObject", "Sketch013")
sketch14.AttachmentSupport = (doc.getObject("XZ_Plane"), [""])
sketch14.MapMode = "FlatFace"
sketch14.AttachmentOffset = App.Placement(App.Vector(0, 0, 2.165), App.Rotation())
sketch14.addGeometry([
    Part.LineSegment(App.Vector(2.67, 0.4, 0), App.Vector(2.67, 0, 0)),
    Part.LineSegment(App.Vector(2.67, 0, 0), App.Vector(2.17, 0, 0)),
    Part.LineSegment(App.Vector(2.17, 0, 0), App.Vector(2.17, 0.4, 0)),
    Part.LineSegment(App.Vector(2.17, 0.4, 0), App.Vector(2.67, 0.4, 0)),
], False)
sketch14.addGeometry(Part.LineSegment(App.Vector(2.17, 0, 0), App.Vector(2.17, 0.4, 0)), True)  # axis
sketch14.addConstraint([
    Sketcher.Constraint("Coincident", 0, 2, 1, 1),
    Sketcher.Constraint("Coincident", 1, 2, 2, 1),
    Sketcher.Constraint("Coincident", 2, 2, 3, 1),
    Sketcher.Constraint("Coincident", 3, 2, 0, 1),
    Sketcher.Constraint("Vertical", 0),
    Sketcher.Constraint("Horizontal", 1),
    Sketcher.Constraint("Vertical", 2),
    Sketcher.Constraint("Horizontal", 3),
    Sketcher.Constraint("Vertical", 4),
    Sketcher.Constraint("Coincident", 4, 1, 1, 2),
    Sketcher.Constraint("PointOnObject", 0, 2, -1),
    Sketcher.Constraint("Horizontal", 3, 2, 4, 2),
    Sketcher.Constraint("DistanceX", 1, 2, 1, 1, Q("0.5 mm")),
    Sketcher.Constraint("DistanceY", 0, 2, 0, 1, Q("0.4 mm")),
    Sketcher.Constraint("DistanceX", -1, 1, 0, 2, Q("2.665 mm")),
])
sketch14.setExpression("Constraints[12]", "Params.sketch14_width")
sketch14.setExpression("Constraints[13]", "Params.sketch14_height")
revolution = body.newObject("PartDesign::Revolution", "Revolution")
revolution.Profile = sketch14
revolution.ReferenceAxis = (sketch14, ["Axis0"])
revolution.setExpression("Angle", "Params.revolution_angle")

# Sketch on XZ plane
sketch15 = body.newObject("Sketcher::SketchObject", "Sketch014")
sketch15.AttachmentSupport = (doc.getObject("XZ_Plane"), [""])
sketch15.MapMode = "FlatFace"
sketch15.AttachmentOffset = App.Placement(App.Vector(0, 0, 2.165), App.Rotation())
sketch15.addGeometry([
    Part.LineSegment(App.Vector(-1.67, 0.4, 0), App.Vector(-1.67, 0, 0)),
    Part.LineSegment(App.Vector(-1.67, 0, 0), App.Vector(-2.17, 0, 0)),
    Part.LineSegment(App.Vector(-2.17, 0, 0), App.Vector(-2.17, 0.4, 0)),
    Part.LineSegment(App.Vector(-2.17, 0.4, 0), App.Vector(-1.67, 0.4, 0)),
], False)
sketch15.addGeometry(Part.LineSegment(App.Vector(-2.17, 0, 0), App.Vector(-2.17, 0.4, 0)), True)  # axis
sketch15.addConstraint([
    Sketcher.Constraint("Coincident", 0, 2, 1, 1),
    Sketcher.Constraint("Coincident", 1, 2, 2, 1),
    Sketcher.Constraint("Coincident", 2, 2, 3, 1),
    Sketcher.Constraint("Coincident", 3, 2, 0, 1),
    Sketcher.Constraint("Vertical", 0),
    Sketcher.Constraint("Horizontal", 1),
    Sketcher.Constraint("Vertical", 2),
    Sketcher.Constraint("Horizontal", 3),
    Sketcher.Constraint("Vertical", 4),
    Sketcher.Constraint("Coincident", 4, 1, 1, 2),
    Sketcher.Constraint("PointOnObject", 0, 2, -1),
    Sketcher.Constraint("Horizontal", 3, 2, 4, 2),
    Sketcher.Constraint("DistanceX", 1, 2, 1, 1, Q("0.5 mm")),
    Sketcher.Constraint("DistanceY", 0, 2, 0, 1, Q("0.4 mm")),
    Sketcher.Constraint("DistanceX", 0, 2, -1, 1, Q("1.665 mm")),
])
sketch15.setExpression("Constraints[12]", "Params.sketch15_width")
sketch15.setExpression("Constraints[13]", "Params.sketch15_height")
revolution2 = body.newObject("PartDesign::Revolution", "Revolution001")
revolution2.Profile = sketch15
revolution2.ReferenceAxis = (sketch15, ["Axis0"])
revolution2.setExpression("Angle", "Params.revolution2_angle")

# Sketch on XZ plane
sketch16 = body.newObject("Sketcher::SketchObject", "Sketch015")
sketch16.AttachmentSupport = (doc.getObject("XZ_Plane"), [""])
sketch16.MapMode = "FlatFace"
sketch16.AttachmentOffset = App.Placement(App.Vector(0, 0, -2.165), App.Rotation())
sketch16.addGeometry([
    Part.LineSegment(App.Vector(-1.67, 0.4, 0), App.Vector(-1.67, 0, 0)),
    Part.LineSegment(App.Vector(-1.67, 0, 0), App.Vector(-2.17, 0, 0)),
    Part.LineSegment(App.Vector(-2.17, 0, 0), App.Vector(-2.17, 0.4, 0)),
    Part.LineSegment(App.Vector(-2.17, 0.4, 0), App.Vector(-1.67, 0.4, 0)),
], False)
sketch16.addGeometry(Part.LineSegment(App.Vector(-2.17, 0, 0), App.Vector(-2.17, 0.4, 0)), True)  # axis
sketch16.addConstraint([
    Sketcher.Constraint("Coincident", 0, 2, 1, 1),
    Sketcher.Constraint("Coincident", 1, 2, 2, 1),
    Sketcher.Constraint("Coincident", 2, 2, 3, 1),
    Sketcher.Constraint("Coincident", 3, 2, 0, 1),
    Sketcher.Constraint("Vertical", 0),
    Sketcher.Constraint("Horizontal", 1),
    Sketcher.Constraint("Vertical", 2),
    Sketcher.Constraint("Horizontal", 3),
    Sketcher.Constraint("Vertical", 4),
    Sketcher.Constraint("Coincident", 4, 1, 1, 2),
    Sketcher.Constraint("PointOnObject", 0, 2, -1),
    Sketcher.Constraint("Horizontal", 3, 2, 4, 2),
    Sketcher.Constraint("DistanceX", 1, 2, 1, 1, Q("0.5 mm")),
    Sketcher.Constraint("DistanceY", 0, 2, 0, 1, Q("0.4 mm")),
    Sketcher.Constraint("DistanceX", 0, 2, -1, 1, Q("1.665 mm")),
])
sketch16.setExpression("Constraints[12]", "Params.sketch16_width")
sketch16.setExpression("Constraints[13]", "Params.sketch16_height")
revolution3 = body.newObject("PartDesign::Revolution", "Revolution002")
revolution3.Profile = sketch16
revolution3.ReferenceAxis = (sketch16, ["Axis0"])
revolution3.setExpression("Angle", "Params.revolution3_angle")

# Sketch on XZ plane
sketch17 = body.newObject("Sketcher::SketchObject", "Sketch016")
sketch17.AttachmentSupport = (doc.getObject("XZ_Plane"), [""])
sketch17.MapMode = "FlatFace"
sketch17.AttachmentOffset = App.Placement(App.Vector(0, 0, -2.165), App.Rotation())
sketch17.addGeometry([
    Part.LineSegment(App.Vector(2.67, 0.4, 0), App.Vector(2.67, 0, 0)),
    Part.LineSegment(App.Vector(2.67, 0, 0), App.Vector(2.17, 0, 0)),
    Part.LineSegment(App.Vector(2.17, 0, 0), App.Vector(2.17, 0.4, 0)),
    Part.LineSegment(App.Vector(2.17, 0.4, 0), App.Vector(2.67, 0.4, 0)),
], False)
sketch17.addGeometry(Part.LineSegment(App.Vector(2.17, 0, 0), App.Vector(2.17, 0.4, 0)), True)  # axis
sketch17.addConstraint([
    Sketcher.Constraint("Coincident", 0, 2, 1, 1),
    Sketcher.Constraint("Coincident", 1, 2, 2, 1),
    Sketcher.Constraint("Coincident", 2, 2, 3, 1),
    Sketcher.Constraint("Coincident", 3, 2, 0, 1),
    Sketcher.Constraint("Vertical", 0),
    Sketcher.Constraint("Horizontal", 1),
    Sketcher.Constraint("Vertical", 2),
    Sketcher.Constraint("Horizontal", 3),
    Sketcher.Constraint("Vertical", 4),
    Sketcher.Constraint("Coincident", 4, 1, 1, 2),
    Sketcher.Constraint("PointOnObject", 0, 2, -1),
    Sketcher.Constraint("Horizontal", 3, 2, 4, 2),
    Sketcher.Constraint("DistanceX", 1, 2, 1, 1, Q("0.5 mm")),
    Sketcher.Constraint("DistanceY", 0, 2, 0, 1, Q("0.4 mm")),
    Sketcher.Constraint("DistanceX", -1, 1, 0, 2, Q("2.665 mm")),
])
sketch17.setExpression("Constraints[12]", "Params.sketch17_width")
sketch17.setExpression("Constraints[13]", "Params.sketch17_height")
revolution4 = body.newObject("PartDesign::Revolution", "Revolution003")
revolution4.Profile = sketch17
revolution4.ReferenceAxis = (sketch17, ["Axis0"])
revolution4.setExpression("Angle", "Params.revolution4_angle")
doc.recompute()

fillet = body.newObject("PartDesign::Fillet", "Fillet")
fillet.Base = (revolution4, edges_at(revolution4, [
    (2.25, 3.65, -2.56),
    (-2.25, -3.95, -3.41),
    (2.25, -3.95, -3.41),
    (-2.25, 3.95, -3.41),
    (2.25, 3.95, -3.41),
    (-2.25, -3.65, -2.56),
    (2.25, -3.65, -2.56),
    (-3, -3, -1.805),
    (-3, 3, -1.805),
    (3, 3, -1.805),
    (3, -3, -1.805),
    (-2.25, 3.65, -2.56),
]))
fillet.setExpression("Radius", "Params.fillet_radius")
doc.recompute()

fillet2 = body.newObject("PartDesign::Fillet", "Fillet001")
fillet2.Base = (fillet, edges_at(fillet, [
    (2.25, 3.65, -3.71),
    (-2.25, -3.95, -2.26),
    (2.25, -3.95, -2.26),
    (-2.25, 3.95, -2.26),
    (2.25, 3.95, -2.26),
    (-2.25, -3.65, -3.71),
    (2.25, -3.65, -3.71),
    (-2.25, 3.65, -3.71),
]))
fillet2.setExpression("Radius", "Params.fillet2_radius")

# Sketch on XY plane
sketch18 = body.newObject("Sketcher::SketchObject", "Sketch017")
sketch18.AttachmentSupport = (doc.getObject("XY_Plane"), [""])
sketch18.MapMode = "FlatFace"
sketch18.addGeometry(Part.Circle(App.Vector(0, 0, 0), App.Vector(0, 0, 1), 1.8), False)
sketch18.addConstraint([
    Sketcher.Constraint("Coincident", 0, 3, -1, 1),
    Sketcher.Constraint("Diameter", 0, Q("3.5 mm")),
])
sketch18.setExpression("Constraints[1]", "Params.sketch18_diameter")
pad10 = body.newObject("PartDesign::Pad", "Pad009")
pad10.Profile = sketch18
pad10.setExpression("Length", "Params.pad10_length")
doc.recompute()

fillet3 = body.newObject("PartDesign::Fillet", "Fillet002")
fillet3.Base = (pad10, edges_at(pad10, [(-1.75, 0, 1.4)]))
fillet3.setExpression("Radius", "Params.fillet3_radius")

doc.recompute()
